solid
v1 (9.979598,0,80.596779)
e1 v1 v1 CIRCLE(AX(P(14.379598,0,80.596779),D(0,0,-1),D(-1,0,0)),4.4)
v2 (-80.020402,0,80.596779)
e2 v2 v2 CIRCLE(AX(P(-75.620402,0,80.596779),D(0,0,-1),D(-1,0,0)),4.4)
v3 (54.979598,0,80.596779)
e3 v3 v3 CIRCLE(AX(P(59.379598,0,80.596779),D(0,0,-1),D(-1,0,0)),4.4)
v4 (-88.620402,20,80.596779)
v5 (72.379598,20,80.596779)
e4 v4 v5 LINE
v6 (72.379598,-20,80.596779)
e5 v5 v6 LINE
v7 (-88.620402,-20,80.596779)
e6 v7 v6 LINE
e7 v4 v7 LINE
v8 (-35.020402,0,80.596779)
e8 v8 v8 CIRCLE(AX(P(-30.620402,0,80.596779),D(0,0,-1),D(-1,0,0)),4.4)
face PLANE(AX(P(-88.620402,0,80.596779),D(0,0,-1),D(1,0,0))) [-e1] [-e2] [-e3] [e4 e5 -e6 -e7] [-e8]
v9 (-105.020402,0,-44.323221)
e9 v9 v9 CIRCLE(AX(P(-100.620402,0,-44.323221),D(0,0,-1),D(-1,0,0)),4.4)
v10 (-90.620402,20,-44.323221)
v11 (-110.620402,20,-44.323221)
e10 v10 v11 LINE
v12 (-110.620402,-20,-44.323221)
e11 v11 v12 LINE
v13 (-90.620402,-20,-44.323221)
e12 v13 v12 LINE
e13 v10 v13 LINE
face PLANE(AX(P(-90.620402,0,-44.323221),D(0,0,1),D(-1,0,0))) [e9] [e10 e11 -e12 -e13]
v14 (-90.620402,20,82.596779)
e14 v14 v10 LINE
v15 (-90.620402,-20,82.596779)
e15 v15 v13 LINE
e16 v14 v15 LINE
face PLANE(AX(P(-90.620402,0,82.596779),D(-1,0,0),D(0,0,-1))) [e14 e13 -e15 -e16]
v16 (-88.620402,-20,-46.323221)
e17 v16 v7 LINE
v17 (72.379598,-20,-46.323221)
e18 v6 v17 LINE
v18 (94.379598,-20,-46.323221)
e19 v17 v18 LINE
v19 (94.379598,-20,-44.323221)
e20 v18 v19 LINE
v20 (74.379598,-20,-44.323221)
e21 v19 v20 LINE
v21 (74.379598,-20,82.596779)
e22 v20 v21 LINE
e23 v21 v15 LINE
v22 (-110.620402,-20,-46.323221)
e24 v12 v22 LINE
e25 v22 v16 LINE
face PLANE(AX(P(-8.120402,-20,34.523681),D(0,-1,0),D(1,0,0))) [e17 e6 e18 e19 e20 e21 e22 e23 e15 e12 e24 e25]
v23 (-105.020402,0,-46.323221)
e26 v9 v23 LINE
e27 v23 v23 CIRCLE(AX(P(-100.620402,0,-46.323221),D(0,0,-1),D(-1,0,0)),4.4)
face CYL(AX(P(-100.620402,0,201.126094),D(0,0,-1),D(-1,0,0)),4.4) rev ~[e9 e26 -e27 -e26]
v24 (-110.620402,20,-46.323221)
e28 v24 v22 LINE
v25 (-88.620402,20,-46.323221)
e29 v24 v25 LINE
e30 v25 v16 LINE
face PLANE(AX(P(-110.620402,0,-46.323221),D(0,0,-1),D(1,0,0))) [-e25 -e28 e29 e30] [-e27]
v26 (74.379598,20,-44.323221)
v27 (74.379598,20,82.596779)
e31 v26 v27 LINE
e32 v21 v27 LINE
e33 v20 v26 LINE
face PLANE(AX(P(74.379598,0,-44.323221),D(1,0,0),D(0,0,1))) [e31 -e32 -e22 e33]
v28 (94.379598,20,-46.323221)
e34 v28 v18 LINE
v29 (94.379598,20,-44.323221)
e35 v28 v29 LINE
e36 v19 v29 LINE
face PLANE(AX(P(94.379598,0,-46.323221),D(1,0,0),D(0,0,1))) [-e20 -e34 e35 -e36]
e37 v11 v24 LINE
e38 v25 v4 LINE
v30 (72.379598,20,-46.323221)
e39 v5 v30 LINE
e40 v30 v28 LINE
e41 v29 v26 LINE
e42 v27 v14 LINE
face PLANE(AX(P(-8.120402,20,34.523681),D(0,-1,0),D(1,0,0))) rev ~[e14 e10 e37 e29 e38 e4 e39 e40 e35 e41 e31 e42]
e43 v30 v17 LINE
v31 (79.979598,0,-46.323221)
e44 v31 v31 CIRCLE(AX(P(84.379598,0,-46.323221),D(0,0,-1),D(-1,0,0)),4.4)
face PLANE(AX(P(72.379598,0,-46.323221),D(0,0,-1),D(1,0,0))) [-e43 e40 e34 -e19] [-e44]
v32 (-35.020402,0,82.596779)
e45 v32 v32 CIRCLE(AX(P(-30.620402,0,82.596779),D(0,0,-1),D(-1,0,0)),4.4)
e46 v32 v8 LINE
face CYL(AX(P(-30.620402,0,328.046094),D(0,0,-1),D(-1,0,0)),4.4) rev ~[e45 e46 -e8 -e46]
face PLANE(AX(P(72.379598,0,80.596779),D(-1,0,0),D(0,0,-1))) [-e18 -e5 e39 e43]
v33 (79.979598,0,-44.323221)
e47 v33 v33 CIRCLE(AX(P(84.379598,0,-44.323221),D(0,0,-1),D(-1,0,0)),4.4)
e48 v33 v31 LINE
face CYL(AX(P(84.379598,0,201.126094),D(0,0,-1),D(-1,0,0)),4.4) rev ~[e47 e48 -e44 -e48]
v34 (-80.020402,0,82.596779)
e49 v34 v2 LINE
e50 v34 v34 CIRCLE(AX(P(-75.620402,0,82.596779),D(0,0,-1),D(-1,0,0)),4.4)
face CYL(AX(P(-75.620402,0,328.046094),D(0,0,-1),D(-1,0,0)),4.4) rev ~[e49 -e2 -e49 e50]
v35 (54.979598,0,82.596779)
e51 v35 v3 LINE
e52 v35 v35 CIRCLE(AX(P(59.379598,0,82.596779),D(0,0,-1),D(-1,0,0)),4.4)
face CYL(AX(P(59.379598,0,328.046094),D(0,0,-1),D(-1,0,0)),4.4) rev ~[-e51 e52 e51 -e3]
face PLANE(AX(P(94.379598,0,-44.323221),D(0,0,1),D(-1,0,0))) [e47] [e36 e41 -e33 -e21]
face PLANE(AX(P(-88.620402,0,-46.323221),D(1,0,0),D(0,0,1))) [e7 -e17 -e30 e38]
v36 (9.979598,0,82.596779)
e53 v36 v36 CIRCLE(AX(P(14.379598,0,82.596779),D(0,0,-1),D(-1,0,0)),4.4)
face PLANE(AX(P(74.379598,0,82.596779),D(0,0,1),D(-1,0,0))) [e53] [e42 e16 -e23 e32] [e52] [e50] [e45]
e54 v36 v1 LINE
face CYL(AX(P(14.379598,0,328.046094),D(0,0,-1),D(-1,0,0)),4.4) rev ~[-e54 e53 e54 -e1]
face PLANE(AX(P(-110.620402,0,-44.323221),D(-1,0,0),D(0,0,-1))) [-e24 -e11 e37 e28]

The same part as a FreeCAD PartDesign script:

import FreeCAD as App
import Part
import Sketcher

doc = App.newDocument("Part")
body = doc.addObject("PartDesign::Body", "Body")

# Sketch on XZ plane
sketch1 = body.newObject("Sketcher::SketchObject", "Sketch")
sketch1.AttachmentSupport = (doc.getObject("XZ_Plane"), [""])
sketch1.MapMode = "FlatFace"
sketch1.addGeometry([
    Part.LineSegment(App.Vector(74.379598, 82.596779, 0), App.Vector(-90.620402, 82.596779, 0)),  # 0
    Part.LineSegment(App.Vector(-90.620402, 82.596779, 0), App.Vector(-90.620402, -44.323221, 0)),  # 1
    Part.LineSegment(App.Vector(-90.620402, -44.323221, 0), App.Vector(-110.620402, -44.323221, 0)),  # 2
    Part.LineSegment(App.Vector(-110.620402, -44.323221, 0), App.Vector(-110.620402, -46.323221, 0)),  # 3
    Part.LineSegment(App.Vector(-110.620402, -46.323221, 0), App.Vector(-88.620402, -46.323221, 0)),  # 4
    Part.LineSegment(App.Vector(-88.620402, -46.323221, 0), App.Vector(-88.620402, 80.596779, 0)),  # 5
    Part.LineSegment(App.Vector(-88.620402, 80.596779, 0), App.Vector(72.379598, 80.596779, 0)),  # 6
    Part.LineSegment(App.Vector(72.379598, 80.596779, 0), App.Vector(72.379598, -46.323221, 0)),  # 7
    Part.LineSegment(App.Vector(72.379598, -46.323221, 0), App.Vector(94.379598, -46.323221, 0)),  # 8
    Part.LineSegment(App.Vector(94.379598, -46.323221, 0), App.Vector(94.379598, -44.323221, 0)),  # 9
    Part.LineSegment(App.Vector(94.379598, -44.323221, 0), App.Vector(74.379598, -44.323221, 0)),  # 10
    Part.LineSegment(App.Vector(74.379598, -44.323221, 0), App.Vector(74.379598, 82.596779, 0)),  # 11
], False)
sketch1.addConstraint([
    Sketcher.Constraint("Coincident", 0, 2, 1, 1),
    Sketcher.Constraint("Coincident", 1, 2, 2, 1),
    Sketcher.Constraint("Coincident", 2, 2, 3, 1),
    Sketcher.Constraint("Coincident", 3, 2, 4, 1),
    Sketcher.Constraint("Coincident", 4, 2, 5, 1),
    Sketcher.Constraint("Coincident", 5, 2, 6, 1),
    Sketcher.Constraint("Coincident", 6, 2, 7, 1),
    Sketcher.Constraint("Coincident", 7, 2, 8, 1),
    Sketcher.Constraint("Coincident", 8, 2, 9, 1),
    Sketcher.Constraint("Coincident", 9, 2, 10, 1),
    Sketcher.Constraint("Coincident", 10, 2, 11, 1),
    Sketcher.Constraint("Coincident", 11, 2, 0, 1),
    Sketcher.Constraint("Horizontal", 0),
    Sketcher.Constraint("Vertical", 1),
    Sketcher.Constraint("Horizontal", 2),
    Sketcher.Constraint("Vertical", 3),
    Sketcher.Constraint("Horizontal", 4),
    Sketcher.Constraint("Vertical", 5),
    Sketcher.Constraint("Horizontal", 6),
    Sketcher.Constraint("Vertical", 7),
    Sketcher.Constraint("Horizontal", 8),
    Sketcher.Constraint("Vertical", 9),
    Sketcher.Constraint("Horizontal", 10),
    Sketcher.Constraint("Vertical", 11),
    Sketcher.Constraint("Horizontal", 4, 2, 7, 2),
    Sketcher.Constraint("Horizontal", 2, 2, 9, 2),
    Sketcher.Constraint("Equal", 4, 8),
    Sketcher.Constraint("Equal", 2, 10),
    Sketcher.Constraint("Equal", 1, 5),
    Sketcher.Constraint("DistanceX", 0, 2, 0, 1, 165.0),
    Sketcher.Constraint("DistanceX", 2, 2, 2, 1, 20.0),
    Sketcher.Constraint("DistanceX", 4, 1, 4, 2, 22.0),
    Sketcher.Constraint("DistanceY", 3, 2, 3, 1, 2.0),
    Sketcher.Constraint("DistanceY", 1, 2, 1, 1, 126.92),
    Sketcher.Constraint("DistanceX", 0, 2, -1, 1, 90.620402),
    Sketcher.Constraint("DistanceY", -1, 1, 0, 2, 82.596779),
])
pad1 = body.newObject("PartDesign::Pad", "Pad")
pad1.Profile = sketch1
pad1.Length = 40
pad1.Midplane = True

# Sketch on XY plane
sketch2 = body.newObject("Sketcher::SketchObject", "Sketch001")
sketch2.AttachmentSupport = (doc.getObject("XY_Plane"), [""])
sketch2.MapMode = "FlatFace"
sketch2.AttachmentOffset = App.Placement(App.Vector(0, 0, 82.596779), App.Rotation())
sketch2.addGeometry([
    Part.Circle(App.Vector(-75.620402, 0, 0), App.Vector(0, 0, 1), 4.4),
    Part.Circle(App.Vector(-30.620402, 0, 0), App.Vector(0, 0, 1), 4.4),
    Part.Circle(App.Vector(14.379598, 0, 0), App.Vector(0, 0, 1), 4.4),
    Part.Circle(App.Vector(59.379598, 0, 0), App.Vector(0, 0, 1), 4.4),
], False)
sketch2.addConstraint([
    Sketcher.Constraint("Equal", 0, 1),
    Sketcher.Constraint("Equal", 1, 2),
    Sketcher.Constraint("Equal", 2, 3),
    Sketcher.Constraint("PointOnObject", 0, 3, -1),
    Sketcher.Constraint("PointOnObject", 1, 3, -1),
    Sketcher.Constraint("PointOnObject", 2, 3, -1),
    Sketcher.Constraint("PointOnObject", 3, 3, -1),
    Sketcher.Constraint("Diameter", 0, 8.8),
    Sketcher.Constraint("DistanceX", 0, 3, 1, 3, 45.0),
    Sketcher.Constraint("DistanceX", 1, 3, 2, 3, 45.0),
    Sketcher.Constraint("DistanceX", 2, 3, 3, 3, 45.0),
    Sketcher.Constraint("DistanceX", 0, 3, -1, 1, 75.620402),
])
doc.recompute()
hole = body.newObject("PartDesign::Hole", "Hole")
hole.Profile = sketch2
hole.ThreadType = "None"
hole.Diameter = 8.8
hole.DepthType = "ThroughAll"

# Sketch on XY plane
sketch3 = body.newObject("Sketcher::SketchObject", "Sketch002")
sketch3.AttachmentSupport = (doc.getObject("XY_Plane"), [""])
sketch3.MapMode = "FlatFace"
sketch3.AttachmentOffset = App.Placement(App.Vector(0, 0, -44.323221), App.Rotation())
sketch3.addGeometry(Part.Circle(App.Vector(-100.620402, 0, 0), App.Vector(0, 0, 1), 4.4), False)
sketch3.addConstraint([
    Sketcher.Constraint("PointOnObject", 0, 3, -1),
    Sketcher.Constraint("Diameter", 0, 8.8),
    Sketcher.Constraint("DistanceX", 0, 3, -1, 1, 100.620402),
])
doc.recompute()
hole2 = body.newObject("PartDesign::Hole", "Hole001")
hole2.Profile = sketch3
hole2.ThreadType = "None"
hole2.Diameter = 8.8
hole2.DepthType = "ThroughAll"

# Sketch on XY plane
sketch4 = body.newObject("Sketcher::SketchObject", "Sketch003")
sketch4.AttachmentSupport = (doc.getObject("XY_Plane"), [""])
sketch4.MapMode = "FlatFace"
sketch4.AttachmentOffset = App.Placement(App.Vector(0, 0, -44.323221), App.Rotation())
sketch4.addGeometry(Part.Circle(App.Vector(84.379598, 0, 0), App.Vector(0, 0, 1), 4.4), False)
sketch4.addConstraint([
    Sketcher.Constraint("PointOnObject", 0, 3, -1),
    Sketcher.Constraint("Diameter", 0, 8.8),
    Sketcher.Constraint("DistanceX", -1, 1, 0, 3, 84.379598),
])
doc.recompute()
hole3 = body.newObject("PartDesign::Hole", "Hole002")
hole3.Profile = sketch4
hole3.ThreadType = "None"
hole3.Diameter = 8.8
hole3.DepthType = "ThroughAll"

doc.recompute()
